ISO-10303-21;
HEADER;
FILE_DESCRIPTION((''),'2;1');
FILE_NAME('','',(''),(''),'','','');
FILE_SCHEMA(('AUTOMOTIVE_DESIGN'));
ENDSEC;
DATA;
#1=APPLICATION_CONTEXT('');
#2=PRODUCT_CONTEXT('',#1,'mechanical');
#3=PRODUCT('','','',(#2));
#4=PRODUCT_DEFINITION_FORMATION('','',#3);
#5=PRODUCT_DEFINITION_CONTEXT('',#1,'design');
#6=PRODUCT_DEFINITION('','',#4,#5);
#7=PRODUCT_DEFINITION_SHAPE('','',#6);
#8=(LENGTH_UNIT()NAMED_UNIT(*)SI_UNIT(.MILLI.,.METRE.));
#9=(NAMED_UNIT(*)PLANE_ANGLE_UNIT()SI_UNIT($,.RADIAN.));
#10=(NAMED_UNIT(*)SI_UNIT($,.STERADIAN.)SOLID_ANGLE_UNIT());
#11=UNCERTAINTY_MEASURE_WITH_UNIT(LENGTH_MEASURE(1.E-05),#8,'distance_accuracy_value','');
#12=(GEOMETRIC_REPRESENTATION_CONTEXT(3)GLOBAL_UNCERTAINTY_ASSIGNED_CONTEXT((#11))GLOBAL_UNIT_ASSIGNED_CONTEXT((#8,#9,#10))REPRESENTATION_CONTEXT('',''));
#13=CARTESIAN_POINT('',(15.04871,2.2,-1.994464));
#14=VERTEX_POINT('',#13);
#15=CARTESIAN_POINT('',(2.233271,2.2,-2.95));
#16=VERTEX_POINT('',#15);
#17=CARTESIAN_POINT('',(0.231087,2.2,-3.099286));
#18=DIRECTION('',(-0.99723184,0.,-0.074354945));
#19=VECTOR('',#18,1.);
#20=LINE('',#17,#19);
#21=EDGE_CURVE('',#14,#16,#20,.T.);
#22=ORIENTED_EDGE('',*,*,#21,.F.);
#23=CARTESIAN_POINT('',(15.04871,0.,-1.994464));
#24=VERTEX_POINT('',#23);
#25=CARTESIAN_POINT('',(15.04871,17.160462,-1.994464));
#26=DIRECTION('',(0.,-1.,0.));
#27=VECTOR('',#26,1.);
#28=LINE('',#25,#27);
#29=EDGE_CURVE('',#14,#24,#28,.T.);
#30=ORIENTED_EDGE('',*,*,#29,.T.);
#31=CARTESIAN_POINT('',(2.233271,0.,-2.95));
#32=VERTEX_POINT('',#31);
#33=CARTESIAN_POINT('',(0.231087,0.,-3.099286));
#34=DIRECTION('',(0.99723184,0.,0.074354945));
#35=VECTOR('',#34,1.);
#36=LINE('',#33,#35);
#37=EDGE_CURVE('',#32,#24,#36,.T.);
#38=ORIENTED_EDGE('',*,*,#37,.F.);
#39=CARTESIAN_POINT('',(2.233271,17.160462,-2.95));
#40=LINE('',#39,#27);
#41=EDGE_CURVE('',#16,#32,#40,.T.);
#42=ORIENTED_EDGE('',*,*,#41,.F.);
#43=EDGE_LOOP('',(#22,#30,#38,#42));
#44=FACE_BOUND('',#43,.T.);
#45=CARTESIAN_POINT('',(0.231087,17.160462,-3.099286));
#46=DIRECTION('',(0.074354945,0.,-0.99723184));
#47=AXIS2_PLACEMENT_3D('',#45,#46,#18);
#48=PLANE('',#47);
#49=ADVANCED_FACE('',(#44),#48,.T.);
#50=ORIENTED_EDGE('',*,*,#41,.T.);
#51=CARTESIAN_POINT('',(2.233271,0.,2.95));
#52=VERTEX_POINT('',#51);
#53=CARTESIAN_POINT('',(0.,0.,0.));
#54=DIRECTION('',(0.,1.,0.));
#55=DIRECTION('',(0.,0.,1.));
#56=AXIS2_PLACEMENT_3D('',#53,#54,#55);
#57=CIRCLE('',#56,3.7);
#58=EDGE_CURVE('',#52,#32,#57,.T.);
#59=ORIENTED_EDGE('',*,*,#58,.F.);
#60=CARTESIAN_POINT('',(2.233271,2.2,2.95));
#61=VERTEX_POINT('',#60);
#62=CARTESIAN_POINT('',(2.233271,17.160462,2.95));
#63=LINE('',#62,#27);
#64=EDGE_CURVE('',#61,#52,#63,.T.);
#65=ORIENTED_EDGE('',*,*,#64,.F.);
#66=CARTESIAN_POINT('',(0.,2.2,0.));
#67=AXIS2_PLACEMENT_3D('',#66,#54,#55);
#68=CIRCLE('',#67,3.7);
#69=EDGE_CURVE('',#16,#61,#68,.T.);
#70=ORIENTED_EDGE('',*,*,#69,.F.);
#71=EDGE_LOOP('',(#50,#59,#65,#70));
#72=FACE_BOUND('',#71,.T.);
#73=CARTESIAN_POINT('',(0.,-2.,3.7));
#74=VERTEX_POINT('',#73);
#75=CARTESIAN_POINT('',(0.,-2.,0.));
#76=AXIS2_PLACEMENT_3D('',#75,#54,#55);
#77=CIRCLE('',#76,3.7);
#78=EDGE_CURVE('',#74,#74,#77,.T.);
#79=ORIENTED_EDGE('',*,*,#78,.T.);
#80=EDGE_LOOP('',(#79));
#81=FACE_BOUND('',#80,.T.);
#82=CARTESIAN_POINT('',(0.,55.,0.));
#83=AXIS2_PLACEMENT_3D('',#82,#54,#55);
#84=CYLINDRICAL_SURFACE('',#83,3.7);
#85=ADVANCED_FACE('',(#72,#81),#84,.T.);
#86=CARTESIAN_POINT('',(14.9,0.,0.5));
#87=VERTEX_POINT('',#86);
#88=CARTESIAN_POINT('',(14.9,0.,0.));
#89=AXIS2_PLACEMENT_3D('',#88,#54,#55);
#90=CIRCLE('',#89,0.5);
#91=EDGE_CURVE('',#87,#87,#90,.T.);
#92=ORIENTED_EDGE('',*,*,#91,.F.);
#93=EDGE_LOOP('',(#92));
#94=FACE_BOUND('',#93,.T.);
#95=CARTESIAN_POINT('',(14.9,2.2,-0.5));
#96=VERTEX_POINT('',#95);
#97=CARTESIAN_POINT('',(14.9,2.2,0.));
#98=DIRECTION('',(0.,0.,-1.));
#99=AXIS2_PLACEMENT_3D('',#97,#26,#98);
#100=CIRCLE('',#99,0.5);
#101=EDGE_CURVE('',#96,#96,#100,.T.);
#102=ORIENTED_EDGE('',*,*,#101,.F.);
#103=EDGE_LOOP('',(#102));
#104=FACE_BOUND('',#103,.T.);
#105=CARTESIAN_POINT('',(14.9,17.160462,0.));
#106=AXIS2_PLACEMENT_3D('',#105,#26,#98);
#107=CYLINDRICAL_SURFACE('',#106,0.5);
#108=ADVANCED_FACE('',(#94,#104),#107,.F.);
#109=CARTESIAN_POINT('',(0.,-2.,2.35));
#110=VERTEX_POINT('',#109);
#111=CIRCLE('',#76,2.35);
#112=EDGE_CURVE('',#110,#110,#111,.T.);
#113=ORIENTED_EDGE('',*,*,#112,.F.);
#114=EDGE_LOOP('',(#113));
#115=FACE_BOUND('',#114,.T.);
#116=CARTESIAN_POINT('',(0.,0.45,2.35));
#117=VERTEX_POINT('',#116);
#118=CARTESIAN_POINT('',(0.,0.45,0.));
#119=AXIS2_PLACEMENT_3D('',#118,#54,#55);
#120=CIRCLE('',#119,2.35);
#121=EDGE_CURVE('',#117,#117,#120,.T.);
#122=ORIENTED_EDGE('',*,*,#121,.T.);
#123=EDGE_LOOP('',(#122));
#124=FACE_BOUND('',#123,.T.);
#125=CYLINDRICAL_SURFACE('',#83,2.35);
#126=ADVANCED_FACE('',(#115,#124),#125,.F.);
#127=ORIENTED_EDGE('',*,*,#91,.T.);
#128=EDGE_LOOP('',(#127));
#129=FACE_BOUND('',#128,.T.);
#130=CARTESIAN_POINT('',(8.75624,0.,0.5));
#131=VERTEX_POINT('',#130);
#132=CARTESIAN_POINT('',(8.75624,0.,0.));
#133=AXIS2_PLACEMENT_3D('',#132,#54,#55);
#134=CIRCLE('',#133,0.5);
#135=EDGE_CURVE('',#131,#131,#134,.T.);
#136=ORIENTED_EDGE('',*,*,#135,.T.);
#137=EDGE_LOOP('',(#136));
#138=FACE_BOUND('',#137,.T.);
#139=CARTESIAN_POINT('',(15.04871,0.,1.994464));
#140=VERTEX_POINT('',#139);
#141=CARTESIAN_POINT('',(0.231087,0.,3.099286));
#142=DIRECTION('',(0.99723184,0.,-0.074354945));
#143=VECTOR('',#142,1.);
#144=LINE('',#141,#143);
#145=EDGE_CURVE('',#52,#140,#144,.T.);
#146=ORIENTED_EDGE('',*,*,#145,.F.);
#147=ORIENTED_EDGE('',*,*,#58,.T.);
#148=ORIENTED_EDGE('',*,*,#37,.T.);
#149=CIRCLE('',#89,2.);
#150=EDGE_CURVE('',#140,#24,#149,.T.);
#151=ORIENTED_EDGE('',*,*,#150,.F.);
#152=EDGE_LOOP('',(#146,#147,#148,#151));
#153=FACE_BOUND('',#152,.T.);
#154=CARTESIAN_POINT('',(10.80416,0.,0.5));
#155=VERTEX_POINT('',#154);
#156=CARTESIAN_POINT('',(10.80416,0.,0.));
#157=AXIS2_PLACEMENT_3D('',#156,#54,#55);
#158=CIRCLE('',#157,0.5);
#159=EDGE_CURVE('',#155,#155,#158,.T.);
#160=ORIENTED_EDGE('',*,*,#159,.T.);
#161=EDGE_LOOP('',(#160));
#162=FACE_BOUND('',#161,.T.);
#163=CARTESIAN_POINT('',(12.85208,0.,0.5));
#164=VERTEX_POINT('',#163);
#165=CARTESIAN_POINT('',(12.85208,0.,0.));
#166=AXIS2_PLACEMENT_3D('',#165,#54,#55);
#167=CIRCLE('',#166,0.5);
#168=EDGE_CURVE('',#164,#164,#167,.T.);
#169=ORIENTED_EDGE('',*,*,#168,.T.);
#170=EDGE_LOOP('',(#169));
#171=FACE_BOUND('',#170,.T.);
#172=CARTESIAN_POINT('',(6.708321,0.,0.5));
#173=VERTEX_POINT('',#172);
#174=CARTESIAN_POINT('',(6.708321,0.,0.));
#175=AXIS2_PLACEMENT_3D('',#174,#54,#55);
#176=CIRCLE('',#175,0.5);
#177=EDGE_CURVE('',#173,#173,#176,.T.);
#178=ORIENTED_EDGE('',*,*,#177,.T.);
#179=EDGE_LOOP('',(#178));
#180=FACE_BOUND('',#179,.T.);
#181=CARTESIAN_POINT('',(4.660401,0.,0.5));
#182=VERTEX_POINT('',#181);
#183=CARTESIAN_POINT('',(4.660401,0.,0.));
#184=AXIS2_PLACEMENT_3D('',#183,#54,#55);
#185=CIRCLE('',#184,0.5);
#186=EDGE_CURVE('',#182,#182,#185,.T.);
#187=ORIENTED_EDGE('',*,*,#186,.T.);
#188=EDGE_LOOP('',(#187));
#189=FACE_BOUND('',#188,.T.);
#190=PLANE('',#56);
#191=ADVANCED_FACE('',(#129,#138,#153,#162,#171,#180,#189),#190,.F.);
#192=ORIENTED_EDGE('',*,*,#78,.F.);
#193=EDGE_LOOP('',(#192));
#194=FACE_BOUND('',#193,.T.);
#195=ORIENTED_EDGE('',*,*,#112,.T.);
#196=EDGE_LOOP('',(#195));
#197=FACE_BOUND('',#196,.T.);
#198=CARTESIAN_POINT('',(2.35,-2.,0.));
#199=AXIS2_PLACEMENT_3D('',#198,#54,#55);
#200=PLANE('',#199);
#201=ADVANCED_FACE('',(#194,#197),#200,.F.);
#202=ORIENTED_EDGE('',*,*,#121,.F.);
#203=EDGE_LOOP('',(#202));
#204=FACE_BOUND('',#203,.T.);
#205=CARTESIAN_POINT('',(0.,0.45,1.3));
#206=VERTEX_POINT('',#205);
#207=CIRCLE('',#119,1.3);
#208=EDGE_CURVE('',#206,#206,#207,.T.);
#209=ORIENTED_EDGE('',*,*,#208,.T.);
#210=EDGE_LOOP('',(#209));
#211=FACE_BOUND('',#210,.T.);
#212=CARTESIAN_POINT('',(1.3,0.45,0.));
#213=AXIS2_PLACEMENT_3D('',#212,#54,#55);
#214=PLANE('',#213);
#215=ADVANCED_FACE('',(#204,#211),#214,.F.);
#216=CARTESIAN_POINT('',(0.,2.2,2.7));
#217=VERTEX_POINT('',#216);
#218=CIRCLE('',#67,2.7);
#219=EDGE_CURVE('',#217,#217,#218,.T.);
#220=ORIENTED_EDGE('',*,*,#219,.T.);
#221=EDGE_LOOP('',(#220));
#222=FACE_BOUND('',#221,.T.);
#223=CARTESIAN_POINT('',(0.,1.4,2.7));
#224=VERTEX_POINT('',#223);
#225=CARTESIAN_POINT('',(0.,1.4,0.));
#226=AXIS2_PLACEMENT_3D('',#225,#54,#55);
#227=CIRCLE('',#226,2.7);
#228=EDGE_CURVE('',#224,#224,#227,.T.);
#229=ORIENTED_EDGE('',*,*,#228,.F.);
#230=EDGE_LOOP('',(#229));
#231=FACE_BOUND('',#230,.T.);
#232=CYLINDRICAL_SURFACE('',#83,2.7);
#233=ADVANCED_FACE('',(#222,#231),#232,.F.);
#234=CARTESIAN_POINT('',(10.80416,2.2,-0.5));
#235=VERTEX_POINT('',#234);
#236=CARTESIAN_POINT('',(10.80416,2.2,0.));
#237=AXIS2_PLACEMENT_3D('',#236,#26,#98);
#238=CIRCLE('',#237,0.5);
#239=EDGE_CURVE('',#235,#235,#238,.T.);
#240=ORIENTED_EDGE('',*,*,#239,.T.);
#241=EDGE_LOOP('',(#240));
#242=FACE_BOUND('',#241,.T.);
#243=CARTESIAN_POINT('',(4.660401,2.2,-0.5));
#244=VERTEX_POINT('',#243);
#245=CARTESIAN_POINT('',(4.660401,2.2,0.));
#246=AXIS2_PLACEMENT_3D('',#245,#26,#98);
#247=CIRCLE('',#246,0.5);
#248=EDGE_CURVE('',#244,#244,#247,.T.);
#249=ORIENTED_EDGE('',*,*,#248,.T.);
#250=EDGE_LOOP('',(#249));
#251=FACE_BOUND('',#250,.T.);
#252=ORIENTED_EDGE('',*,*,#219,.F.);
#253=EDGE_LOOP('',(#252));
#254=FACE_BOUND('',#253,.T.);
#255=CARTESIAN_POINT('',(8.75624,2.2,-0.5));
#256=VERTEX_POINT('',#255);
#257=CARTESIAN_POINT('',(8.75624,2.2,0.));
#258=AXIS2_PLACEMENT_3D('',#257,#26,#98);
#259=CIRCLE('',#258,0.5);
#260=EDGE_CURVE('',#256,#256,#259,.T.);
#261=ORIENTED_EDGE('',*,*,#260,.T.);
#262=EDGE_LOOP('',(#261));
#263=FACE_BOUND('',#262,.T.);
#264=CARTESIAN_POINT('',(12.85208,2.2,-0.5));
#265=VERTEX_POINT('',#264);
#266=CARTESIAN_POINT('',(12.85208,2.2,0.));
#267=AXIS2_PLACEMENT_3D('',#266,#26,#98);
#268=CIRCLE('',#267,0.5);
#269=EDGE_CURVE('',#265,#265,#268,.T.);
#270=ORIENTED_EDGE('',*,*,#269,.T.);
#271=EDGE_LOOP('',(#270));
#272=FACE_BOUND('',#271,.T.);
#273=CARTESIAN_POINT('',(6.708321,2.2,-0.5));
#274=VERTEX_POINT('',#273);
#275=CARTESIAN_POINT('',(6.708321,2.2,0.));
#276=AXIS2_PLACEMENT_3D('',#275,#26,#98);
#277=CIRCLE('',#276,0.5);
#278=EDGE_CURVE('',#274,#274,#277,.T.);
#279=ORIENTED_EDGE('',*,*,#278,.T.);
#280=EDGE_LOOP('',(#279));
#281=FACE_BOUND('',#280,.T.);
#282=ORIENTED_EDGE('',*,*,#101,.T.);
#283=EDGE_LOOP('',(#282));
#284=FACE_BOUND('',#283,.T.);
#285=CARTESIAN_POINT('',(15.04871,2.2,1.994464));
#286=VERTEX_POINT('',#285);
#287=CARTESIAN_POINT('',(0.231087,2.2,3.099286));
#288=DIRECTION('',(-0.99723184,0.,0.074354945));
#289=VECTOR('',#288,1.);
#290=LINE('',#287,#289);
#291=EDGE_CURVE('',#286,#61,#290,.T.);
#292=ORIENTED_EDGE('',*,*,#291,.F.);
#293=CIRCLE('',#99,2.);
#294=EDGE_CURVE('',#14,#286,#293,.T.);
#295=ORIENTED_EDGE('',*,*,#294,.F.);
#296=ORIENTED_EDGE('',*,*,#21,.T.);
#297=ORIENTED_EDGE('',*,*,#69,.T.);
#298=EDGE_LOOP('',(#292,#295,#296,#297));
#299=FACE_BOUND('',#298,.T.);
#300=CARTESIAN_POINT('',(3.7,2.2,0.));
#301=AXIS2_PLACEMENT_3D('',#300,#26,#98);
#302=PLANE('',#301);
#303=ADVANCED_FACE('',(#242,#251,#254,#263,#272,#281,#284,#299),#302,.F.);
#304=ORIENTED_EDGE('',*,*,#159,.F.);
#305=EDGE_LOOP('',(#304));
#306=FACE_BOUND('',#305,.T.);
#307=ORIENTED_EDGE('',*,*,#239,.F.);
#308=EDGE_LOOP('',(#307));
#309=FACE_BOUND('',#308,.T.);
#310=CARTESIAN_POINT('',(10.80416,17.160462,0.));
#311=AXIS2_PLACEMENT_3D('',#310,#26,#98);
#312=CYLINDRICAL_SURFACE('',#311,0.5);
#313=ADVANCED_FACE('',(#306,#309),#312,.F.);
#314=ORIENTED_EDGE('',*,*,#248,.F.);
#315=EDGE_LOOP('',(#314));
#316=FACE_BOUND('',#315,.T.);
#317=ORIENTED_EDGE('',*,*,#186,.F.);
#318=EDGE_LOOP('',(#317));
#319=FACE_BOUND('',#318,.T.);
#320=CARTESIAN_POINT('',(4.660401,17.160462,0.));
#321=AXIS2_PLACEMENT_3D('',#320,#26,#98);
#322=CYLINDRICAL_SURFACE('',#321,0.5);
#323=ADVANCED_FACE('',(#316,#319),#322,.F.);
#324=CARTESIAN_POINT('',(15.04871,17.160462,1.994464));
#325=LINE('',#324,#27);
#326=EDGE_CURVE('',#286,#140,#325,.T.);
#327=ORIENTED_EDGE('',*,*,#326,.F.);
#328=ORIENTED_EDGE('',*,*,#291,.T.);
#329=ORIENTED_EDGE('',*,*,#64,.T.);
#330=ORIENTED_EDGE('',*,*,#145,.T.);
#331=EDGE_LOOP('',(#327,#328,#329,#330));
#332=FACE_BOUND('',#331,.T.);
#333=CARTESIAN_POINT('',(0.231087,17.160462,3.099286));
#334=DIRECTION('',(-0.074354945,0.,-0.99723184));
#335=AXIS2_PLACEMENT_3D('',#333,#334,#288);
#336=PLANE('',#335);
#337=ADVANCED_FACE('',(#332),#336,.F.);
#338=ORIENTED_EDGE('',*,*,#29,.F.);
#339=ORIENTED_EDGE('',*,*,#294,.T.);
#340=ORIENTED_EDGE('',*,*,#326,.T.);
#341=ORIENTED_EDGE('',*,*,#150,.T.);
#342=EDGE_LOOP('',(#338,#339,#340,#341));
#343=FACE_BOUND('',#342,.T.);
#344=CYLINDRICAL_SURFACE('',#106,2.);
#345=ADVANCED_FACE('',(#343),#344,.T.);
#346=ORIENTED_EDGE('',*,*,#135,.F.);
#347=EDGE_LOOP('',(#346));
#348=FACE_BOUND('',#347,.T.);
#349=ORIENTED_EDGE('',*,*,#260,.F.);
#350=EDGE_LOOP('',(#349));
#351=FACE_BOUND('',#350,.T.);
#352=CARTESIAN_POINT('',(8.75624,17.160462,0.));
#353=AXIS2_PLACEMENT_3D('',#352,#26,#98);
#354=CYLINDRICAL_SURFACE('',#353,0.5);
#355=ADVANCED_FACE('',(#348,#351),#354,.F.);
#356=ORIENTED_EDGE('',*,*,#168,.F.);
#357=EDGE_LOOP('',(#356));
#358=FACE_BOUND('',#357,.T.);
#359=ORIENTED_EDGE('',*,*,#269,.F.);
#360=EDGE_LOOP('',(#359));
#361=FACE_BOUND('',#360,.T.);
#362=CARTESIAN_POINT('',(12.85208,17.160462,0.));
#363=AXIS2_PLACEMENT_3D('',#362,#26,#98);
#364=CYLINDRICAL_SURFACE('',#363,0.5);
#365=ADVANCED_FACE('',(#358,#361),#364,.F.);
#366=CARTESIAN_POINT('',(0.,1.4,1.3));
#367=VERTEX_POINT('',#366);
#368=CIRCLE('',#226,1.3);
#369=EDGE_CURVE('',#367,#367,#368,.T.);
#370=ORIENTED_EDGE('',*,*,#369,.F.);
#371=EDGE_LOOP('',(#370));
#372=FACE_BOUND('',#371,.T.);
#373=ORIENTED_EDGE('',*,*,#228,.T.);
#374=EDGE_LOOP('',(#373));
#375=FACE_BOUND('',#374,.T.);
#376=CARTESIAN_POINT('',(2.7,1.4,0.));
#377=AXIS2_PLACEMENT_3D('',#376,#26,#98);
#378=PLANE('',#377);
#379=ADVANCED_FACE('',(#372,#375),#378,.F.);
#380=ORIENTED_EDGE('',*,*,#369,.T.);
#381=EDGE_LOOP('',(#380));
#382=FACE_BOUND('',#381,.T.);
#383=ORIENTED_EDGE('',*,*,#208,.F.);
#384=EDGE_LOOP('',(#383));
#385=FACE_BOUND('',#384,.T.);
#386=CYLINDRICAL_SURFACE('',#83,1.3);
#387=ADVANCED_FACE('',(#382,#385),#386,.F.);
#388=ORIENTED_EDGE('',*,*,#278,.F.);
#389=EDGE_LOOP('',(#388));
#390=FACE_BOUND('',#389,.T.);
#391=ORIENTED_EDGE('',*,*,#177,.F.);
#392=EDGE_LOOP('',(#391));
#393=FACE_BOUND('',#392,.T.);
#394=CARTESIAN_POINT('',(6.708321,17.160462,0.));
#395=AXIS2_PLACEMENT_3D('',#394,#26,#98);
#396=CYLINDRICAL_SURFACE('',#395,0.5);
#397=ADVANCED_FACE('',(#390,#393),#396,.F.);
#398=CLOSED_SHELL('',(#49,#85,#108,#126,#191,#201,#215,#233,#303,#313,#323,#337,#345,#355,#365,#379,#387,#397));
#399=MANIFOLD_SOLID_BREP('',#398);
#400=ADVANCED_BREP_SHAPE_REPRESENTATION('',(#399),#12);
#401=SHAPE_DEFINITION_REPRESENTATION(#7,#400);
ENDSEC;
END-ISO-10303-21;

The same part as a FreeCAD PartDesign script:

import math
import FreeCAD as App
import Part
import Sketcher

V = App.Vector
Q = App.Units.Quantity

doc = App.newDocument("Part")
body = doc.addObject("PartDesign::Body", "Body")

sketch1 = body.newObject("Sketcher::SketchObject", "Sketch")
sketch1.AttachmentSupport = (doc.getObject("XY_Plane"), [""])
sketch1.MapMode = "FlatFace"
sketch1.addGeometry([
    Part.LineSegment(V(2.7, 2.2, 0), V(2.7, 1.4, 0)),
    Part.LineSegment(V(2.7, 1.4, 0), V(1.3, 1.4, 0)),
    Part.LineSegment(V(1.3, 1.4, 0), V(1.3, 0.5, 0)),
    Part.LineSegment(V(1.3, 0.5, 0), V(2.4, 0.5, 0)),
    Part.LineSegment(V(2.4, 0.5, 0), V(2.4, -2, 0)),
    Part.LineSegment(V(2.4, -2, 0), V(3.7, -2, 0)),
    Part.LineSegment(V(3.7, -2, 0), V(3.7, 2.2, 0)),
    Part.LineSegment(V(3.7, 2.2, 0), V(2.7, 2.2, 0)),
], False)
sketch1.addConstraint([
    Sketcher.Constraint("Coincident", 0, 2, 1, 1),
    Sketcher.Constraint("Coincident", 1, 2, 2, 1),
    Sketcher.Constraint("Coincident", 2, 2, 3, 1),
    Sketcher.Constraint("Coincident", 3, 2, 4, 1),
    Sketcher.Constraint("Coincident", 4, 2, 5, 1),
    Sketcher.Constraint("Coincident", 5, 2, 6, 1),
    Sketcher.Constraint("Coincident", 6, 2, 7, 1),
    Sketcher.Constraint("Coincident", 7, 2, 0, 1),
    Sketcher.Constraint("Vertical", 0),
    Sketcher.Constraint("Horizontal", 1),
    Sketcher.Constraint("Vertical", 2),
    Sketcher.Constraint("Horizontal", 3),
    Sketcher.Constraint("Vertical", 4),
    Sketcher.Constraint("Horizontal", 5),
    Sketcher.Constraint("Vertical", 6),
    Sketcher.Constraint("Horizontal", 7),
    Sketcher.Constraint("DistanceX", 7, 2, 7, 1, Q("1 mm")),
    Sketcher.Constraint("DistanceX", 1, 2, 1, 1, Q("1.4 mm")),
    Sketcher.Constraint("DistanceY", 0, 2, 0, 1, Q("0.8 mm")),
    Sketcher.Constraint("DistanceY", 6, 1, 6, 2, Q("4.2 mm")),
    Sketcher.Constraint("DistanceY", 4, 2, -1, 1, Q("2 mm")),
    Sketcher.Constraint("DistanceX", 3, 1, 3, 2, Q("1.05 mm")),
    Sketcher.Constraint("DistanceY", 2, 2, 2, 1, Q("0.95 mm")),
    Sketcher.Constraint("DistanceX", -1, 1, 0, 2, Q("2.7 mm")),
])
revolution = body.newObject("PartDesign::Revolution", "Revolution")
revolution.Profile = sketch1
revolution.ReferenceAxis = (sketch1, ["V_Axis"])
revolution.Angle = 360

sketch2 = body.newObject("Sketcher::SketchObject", "Sketch001")
sketch2.AttachmentSupport = (doc.getObject("XZ_Plane"), [""])
sketch2.MapMode = "FlatFace"
sketch2.AttachmentOffset = App.Placement(V(0, 0, -2.2), App.Rotation())
sketch2.addGeometry([
    Part.ArcOfCircle(Part.Circle(V(0, 0, 0), V(0, 0, 1), 3.7), math.radians(0), math.radians(53)),
    Part.LineSegment(V(2.23, 2.95, 0), V(15.05, 1.99, 0)),
    Part.ArcOfCircle(Part.Circle(V(14.9, 0, 0), V(0, 0, 1), 2), math.radians(0), math.radians(86)),
    Part.LineSegment(V(16.9, 0, 0), V(15.4, 0, 0)),
    Part.ArcOfCircle(Part.Circle(V(14.9, 0, 0), V(0, 0, 1), 0.5), math.radians(0), math.radians(180)),
    Part.LineSegment(V(14.4, 0, 0), V(13.35, 0, 0)),
    Part.ArcOfCircle(Part.Circle(V(12.85, 0, 0), V(0, 0, 1), 0.5), math.radians(0), math.radians(77)),
    Part.ArcOfCircle(Part.Circle(V(12.85, 0, 0), V(0, 0, 1), 0.5), math.radians(77), math.radians(180)),
    Part.LineSegment(V(12.35, 0, 0), V(11.3, 0, 0)),
    Part.ArcOfCircle(Part.Circle(V(10.8, 0, 0), V(0, 0, 1), 0.5), math.radians(0), math.radians(180)),
    Part.LineSegment(V(10.3, 0, 0), V(9.26, 0, 0)),
    Part.ArcOfCircle(Part.Circle(V(8.76, 0, 0), V(0, 0, 1), 0.5), math.radians(0), math.radians(180)),
    Part.LineSegment(V(8.26, 0, 0), V(7.21, 0, 0)),
    Part.ArcOfCircle(Part.Circle(V(6.71, 0, 0), V(0, 0, 1), 0.5), math.radians(0), math.radians(180)),
    Part.LineSegment(V(6.21, 0, 0), V(5.16, 0, 0)),
    Part.ArcOfCircle(Part.Circle(V(4.66, 0, 0), V(0, 0, 1), 0.5), math.radians(0), math.radians(180)),
    Part.LineSegment(V(4.16, 0, 0), V(3.7, 0, 0)),
], False)
sketch2.addConstraint([
    Sketcher.Constraint("Coincident", 0, 2, 1, 1),
    Sketcher.Constraint("Tangent", 1, 2, 2, 2),
    Sketcher.Constraint("Coincident", 2, 1, 3, 1),
    Sketcher.Constraint("Coincident", 3, 2, 4, 1),
    Sketcher.Constraint("Coincident", 4, 2, 5, 1),
    Sketcher.Constraint("Coincident", 5, 2, 6, 1),
    Sketcher.Constraint("Tangent", 6, 2, 7, 1),
    Sketcher.Constraint("Coincident", 7, 2, 8, 1),
    Sketcher.Constraint("Coincident", 8, 2, 9, 1),
    Sketcher.Constraint("Coincident", 9, 2, 10, 1),
    Sketcher.Constraint("Coincident", 10, 2, 11, 1),
    Sketcher.Constraint("Coincident", 11, 2, 12, 1),
    Sketcher.Constraint("Coincident", 12, 2, 13, 1),
    Sketcher.Constraint("Coincident", 13, 2, 14, 1),
    Sketcher.Constraint("Coincident", 14, 2, 15, 1),
    Sketcher.Constraint("Coincident", 15, 2, 16, 1),
    Sketcher.Constraint("Coincident", 16, 2, 0, 1),
    Sketcher.Constraint("Horizontal", 3),
    Sketcher.Constraint("Horizontal", 5),
    Sketcher.Constraint("Horizontal", 8),
    Sketcher.Constraint("Horizontal", 10),
    Sketcher.Constraint("Horizontal", 12),
    Sketcher.Constraint("Horizontal", 14),
    Sketcher.Constraint("Horizontal", 16),
    Sketcher.Constraint("Coincident", 0, 3, -1, 1),
    Sketcher.Constraint("Coincident", 4, 3, 2, 3),
    Sketcher.Constraint("Equal", 4, 6),
    Sketcher.Constraint("Equal", 6, 7),
    Sketcher.Constraint("Equal", 7, 9),
    Sketcher.Constraint("Equal", 9, 11),
    Sketcher.Constraint("Equal", 11, 13),
    Sketcher.Constraint("Equal", 13, 15),
    Sketcher.Constraint("PointOnObject", 2, 3, -1),
    Sketcher.Constraint("PointOnObject", 6, 3, -1),
    Sketcher.Constraint("PointOnObject", 9, 3, -1),
    Sketcher.Constraint("PointOnObject", 11, 3, -1),
    Sketcher.Constraint("PointOnObject", 13, 3, -1),
    Sketcher.Constraint("PointOnObject", 15, 3, -1),
    Sketcher.Constraint("PointOnObject", 2, 1, -1),
    Sketcher.Constraint("PointOnObject", 4, 2, -1),
    Sketcher.Constraint("PointOnObject", 7, 2, -1),
    Sketcher.Constraint("PointOnObject", 9, 2, -1),
    Sketcher.Constraint("PointOnObject", 11, 2, -1),
    Sketcher.Constraint("PointOnObject", 13, 2, -1),
    Sketcher.Constraint("PointOnObject", 15, 2, -1),
    Sketcher.Constraint("Equal", 5, 8),
    Sketcher.Constraint("Equal", 8, 10),
    Sketcher.Constraint("Equal", 10, 12),
    Sketcher.Constraint("Equal", 12, 14),
    Sketcher.Constraint("Radius", 2, Q("2 mm")),
    Sketcher.Constraint("Radius", 0, Q("3.7 mm")),
    Sketcher.Constraint("Radius", 4, Q("0.5 mm")),
    Sketcher.Constraint("DistanceX", -1, 1, 2, 3, Q("14.9 mm")),
    Sketcher.Constraint("DistanceY", -1, 1, 0, 2, Q("2.95 mm")),
    Sketcher.Constraint("DistanceX", 16, 2, 16, 1, Q("0.460401 mm")),
    Sketcher.Constraint("DistanceY", -1, 1, 6, 2, Q("0.488109 mm")),
])
pad1 = body.newObject("PartDesign::Pad", "Pad")
pad1.Profile = sketch2
pad1.Length = 2.2
doc.recompute()

mirrored = body.newObject("PartDesign::Mirrored", "Mirrored")
mirrored.Originals = [pad1]
mirrored.MirrorPlane = (doc.getObject("XY_Plane"), [""])
body.Tip = mirrored

doc.recompute()
